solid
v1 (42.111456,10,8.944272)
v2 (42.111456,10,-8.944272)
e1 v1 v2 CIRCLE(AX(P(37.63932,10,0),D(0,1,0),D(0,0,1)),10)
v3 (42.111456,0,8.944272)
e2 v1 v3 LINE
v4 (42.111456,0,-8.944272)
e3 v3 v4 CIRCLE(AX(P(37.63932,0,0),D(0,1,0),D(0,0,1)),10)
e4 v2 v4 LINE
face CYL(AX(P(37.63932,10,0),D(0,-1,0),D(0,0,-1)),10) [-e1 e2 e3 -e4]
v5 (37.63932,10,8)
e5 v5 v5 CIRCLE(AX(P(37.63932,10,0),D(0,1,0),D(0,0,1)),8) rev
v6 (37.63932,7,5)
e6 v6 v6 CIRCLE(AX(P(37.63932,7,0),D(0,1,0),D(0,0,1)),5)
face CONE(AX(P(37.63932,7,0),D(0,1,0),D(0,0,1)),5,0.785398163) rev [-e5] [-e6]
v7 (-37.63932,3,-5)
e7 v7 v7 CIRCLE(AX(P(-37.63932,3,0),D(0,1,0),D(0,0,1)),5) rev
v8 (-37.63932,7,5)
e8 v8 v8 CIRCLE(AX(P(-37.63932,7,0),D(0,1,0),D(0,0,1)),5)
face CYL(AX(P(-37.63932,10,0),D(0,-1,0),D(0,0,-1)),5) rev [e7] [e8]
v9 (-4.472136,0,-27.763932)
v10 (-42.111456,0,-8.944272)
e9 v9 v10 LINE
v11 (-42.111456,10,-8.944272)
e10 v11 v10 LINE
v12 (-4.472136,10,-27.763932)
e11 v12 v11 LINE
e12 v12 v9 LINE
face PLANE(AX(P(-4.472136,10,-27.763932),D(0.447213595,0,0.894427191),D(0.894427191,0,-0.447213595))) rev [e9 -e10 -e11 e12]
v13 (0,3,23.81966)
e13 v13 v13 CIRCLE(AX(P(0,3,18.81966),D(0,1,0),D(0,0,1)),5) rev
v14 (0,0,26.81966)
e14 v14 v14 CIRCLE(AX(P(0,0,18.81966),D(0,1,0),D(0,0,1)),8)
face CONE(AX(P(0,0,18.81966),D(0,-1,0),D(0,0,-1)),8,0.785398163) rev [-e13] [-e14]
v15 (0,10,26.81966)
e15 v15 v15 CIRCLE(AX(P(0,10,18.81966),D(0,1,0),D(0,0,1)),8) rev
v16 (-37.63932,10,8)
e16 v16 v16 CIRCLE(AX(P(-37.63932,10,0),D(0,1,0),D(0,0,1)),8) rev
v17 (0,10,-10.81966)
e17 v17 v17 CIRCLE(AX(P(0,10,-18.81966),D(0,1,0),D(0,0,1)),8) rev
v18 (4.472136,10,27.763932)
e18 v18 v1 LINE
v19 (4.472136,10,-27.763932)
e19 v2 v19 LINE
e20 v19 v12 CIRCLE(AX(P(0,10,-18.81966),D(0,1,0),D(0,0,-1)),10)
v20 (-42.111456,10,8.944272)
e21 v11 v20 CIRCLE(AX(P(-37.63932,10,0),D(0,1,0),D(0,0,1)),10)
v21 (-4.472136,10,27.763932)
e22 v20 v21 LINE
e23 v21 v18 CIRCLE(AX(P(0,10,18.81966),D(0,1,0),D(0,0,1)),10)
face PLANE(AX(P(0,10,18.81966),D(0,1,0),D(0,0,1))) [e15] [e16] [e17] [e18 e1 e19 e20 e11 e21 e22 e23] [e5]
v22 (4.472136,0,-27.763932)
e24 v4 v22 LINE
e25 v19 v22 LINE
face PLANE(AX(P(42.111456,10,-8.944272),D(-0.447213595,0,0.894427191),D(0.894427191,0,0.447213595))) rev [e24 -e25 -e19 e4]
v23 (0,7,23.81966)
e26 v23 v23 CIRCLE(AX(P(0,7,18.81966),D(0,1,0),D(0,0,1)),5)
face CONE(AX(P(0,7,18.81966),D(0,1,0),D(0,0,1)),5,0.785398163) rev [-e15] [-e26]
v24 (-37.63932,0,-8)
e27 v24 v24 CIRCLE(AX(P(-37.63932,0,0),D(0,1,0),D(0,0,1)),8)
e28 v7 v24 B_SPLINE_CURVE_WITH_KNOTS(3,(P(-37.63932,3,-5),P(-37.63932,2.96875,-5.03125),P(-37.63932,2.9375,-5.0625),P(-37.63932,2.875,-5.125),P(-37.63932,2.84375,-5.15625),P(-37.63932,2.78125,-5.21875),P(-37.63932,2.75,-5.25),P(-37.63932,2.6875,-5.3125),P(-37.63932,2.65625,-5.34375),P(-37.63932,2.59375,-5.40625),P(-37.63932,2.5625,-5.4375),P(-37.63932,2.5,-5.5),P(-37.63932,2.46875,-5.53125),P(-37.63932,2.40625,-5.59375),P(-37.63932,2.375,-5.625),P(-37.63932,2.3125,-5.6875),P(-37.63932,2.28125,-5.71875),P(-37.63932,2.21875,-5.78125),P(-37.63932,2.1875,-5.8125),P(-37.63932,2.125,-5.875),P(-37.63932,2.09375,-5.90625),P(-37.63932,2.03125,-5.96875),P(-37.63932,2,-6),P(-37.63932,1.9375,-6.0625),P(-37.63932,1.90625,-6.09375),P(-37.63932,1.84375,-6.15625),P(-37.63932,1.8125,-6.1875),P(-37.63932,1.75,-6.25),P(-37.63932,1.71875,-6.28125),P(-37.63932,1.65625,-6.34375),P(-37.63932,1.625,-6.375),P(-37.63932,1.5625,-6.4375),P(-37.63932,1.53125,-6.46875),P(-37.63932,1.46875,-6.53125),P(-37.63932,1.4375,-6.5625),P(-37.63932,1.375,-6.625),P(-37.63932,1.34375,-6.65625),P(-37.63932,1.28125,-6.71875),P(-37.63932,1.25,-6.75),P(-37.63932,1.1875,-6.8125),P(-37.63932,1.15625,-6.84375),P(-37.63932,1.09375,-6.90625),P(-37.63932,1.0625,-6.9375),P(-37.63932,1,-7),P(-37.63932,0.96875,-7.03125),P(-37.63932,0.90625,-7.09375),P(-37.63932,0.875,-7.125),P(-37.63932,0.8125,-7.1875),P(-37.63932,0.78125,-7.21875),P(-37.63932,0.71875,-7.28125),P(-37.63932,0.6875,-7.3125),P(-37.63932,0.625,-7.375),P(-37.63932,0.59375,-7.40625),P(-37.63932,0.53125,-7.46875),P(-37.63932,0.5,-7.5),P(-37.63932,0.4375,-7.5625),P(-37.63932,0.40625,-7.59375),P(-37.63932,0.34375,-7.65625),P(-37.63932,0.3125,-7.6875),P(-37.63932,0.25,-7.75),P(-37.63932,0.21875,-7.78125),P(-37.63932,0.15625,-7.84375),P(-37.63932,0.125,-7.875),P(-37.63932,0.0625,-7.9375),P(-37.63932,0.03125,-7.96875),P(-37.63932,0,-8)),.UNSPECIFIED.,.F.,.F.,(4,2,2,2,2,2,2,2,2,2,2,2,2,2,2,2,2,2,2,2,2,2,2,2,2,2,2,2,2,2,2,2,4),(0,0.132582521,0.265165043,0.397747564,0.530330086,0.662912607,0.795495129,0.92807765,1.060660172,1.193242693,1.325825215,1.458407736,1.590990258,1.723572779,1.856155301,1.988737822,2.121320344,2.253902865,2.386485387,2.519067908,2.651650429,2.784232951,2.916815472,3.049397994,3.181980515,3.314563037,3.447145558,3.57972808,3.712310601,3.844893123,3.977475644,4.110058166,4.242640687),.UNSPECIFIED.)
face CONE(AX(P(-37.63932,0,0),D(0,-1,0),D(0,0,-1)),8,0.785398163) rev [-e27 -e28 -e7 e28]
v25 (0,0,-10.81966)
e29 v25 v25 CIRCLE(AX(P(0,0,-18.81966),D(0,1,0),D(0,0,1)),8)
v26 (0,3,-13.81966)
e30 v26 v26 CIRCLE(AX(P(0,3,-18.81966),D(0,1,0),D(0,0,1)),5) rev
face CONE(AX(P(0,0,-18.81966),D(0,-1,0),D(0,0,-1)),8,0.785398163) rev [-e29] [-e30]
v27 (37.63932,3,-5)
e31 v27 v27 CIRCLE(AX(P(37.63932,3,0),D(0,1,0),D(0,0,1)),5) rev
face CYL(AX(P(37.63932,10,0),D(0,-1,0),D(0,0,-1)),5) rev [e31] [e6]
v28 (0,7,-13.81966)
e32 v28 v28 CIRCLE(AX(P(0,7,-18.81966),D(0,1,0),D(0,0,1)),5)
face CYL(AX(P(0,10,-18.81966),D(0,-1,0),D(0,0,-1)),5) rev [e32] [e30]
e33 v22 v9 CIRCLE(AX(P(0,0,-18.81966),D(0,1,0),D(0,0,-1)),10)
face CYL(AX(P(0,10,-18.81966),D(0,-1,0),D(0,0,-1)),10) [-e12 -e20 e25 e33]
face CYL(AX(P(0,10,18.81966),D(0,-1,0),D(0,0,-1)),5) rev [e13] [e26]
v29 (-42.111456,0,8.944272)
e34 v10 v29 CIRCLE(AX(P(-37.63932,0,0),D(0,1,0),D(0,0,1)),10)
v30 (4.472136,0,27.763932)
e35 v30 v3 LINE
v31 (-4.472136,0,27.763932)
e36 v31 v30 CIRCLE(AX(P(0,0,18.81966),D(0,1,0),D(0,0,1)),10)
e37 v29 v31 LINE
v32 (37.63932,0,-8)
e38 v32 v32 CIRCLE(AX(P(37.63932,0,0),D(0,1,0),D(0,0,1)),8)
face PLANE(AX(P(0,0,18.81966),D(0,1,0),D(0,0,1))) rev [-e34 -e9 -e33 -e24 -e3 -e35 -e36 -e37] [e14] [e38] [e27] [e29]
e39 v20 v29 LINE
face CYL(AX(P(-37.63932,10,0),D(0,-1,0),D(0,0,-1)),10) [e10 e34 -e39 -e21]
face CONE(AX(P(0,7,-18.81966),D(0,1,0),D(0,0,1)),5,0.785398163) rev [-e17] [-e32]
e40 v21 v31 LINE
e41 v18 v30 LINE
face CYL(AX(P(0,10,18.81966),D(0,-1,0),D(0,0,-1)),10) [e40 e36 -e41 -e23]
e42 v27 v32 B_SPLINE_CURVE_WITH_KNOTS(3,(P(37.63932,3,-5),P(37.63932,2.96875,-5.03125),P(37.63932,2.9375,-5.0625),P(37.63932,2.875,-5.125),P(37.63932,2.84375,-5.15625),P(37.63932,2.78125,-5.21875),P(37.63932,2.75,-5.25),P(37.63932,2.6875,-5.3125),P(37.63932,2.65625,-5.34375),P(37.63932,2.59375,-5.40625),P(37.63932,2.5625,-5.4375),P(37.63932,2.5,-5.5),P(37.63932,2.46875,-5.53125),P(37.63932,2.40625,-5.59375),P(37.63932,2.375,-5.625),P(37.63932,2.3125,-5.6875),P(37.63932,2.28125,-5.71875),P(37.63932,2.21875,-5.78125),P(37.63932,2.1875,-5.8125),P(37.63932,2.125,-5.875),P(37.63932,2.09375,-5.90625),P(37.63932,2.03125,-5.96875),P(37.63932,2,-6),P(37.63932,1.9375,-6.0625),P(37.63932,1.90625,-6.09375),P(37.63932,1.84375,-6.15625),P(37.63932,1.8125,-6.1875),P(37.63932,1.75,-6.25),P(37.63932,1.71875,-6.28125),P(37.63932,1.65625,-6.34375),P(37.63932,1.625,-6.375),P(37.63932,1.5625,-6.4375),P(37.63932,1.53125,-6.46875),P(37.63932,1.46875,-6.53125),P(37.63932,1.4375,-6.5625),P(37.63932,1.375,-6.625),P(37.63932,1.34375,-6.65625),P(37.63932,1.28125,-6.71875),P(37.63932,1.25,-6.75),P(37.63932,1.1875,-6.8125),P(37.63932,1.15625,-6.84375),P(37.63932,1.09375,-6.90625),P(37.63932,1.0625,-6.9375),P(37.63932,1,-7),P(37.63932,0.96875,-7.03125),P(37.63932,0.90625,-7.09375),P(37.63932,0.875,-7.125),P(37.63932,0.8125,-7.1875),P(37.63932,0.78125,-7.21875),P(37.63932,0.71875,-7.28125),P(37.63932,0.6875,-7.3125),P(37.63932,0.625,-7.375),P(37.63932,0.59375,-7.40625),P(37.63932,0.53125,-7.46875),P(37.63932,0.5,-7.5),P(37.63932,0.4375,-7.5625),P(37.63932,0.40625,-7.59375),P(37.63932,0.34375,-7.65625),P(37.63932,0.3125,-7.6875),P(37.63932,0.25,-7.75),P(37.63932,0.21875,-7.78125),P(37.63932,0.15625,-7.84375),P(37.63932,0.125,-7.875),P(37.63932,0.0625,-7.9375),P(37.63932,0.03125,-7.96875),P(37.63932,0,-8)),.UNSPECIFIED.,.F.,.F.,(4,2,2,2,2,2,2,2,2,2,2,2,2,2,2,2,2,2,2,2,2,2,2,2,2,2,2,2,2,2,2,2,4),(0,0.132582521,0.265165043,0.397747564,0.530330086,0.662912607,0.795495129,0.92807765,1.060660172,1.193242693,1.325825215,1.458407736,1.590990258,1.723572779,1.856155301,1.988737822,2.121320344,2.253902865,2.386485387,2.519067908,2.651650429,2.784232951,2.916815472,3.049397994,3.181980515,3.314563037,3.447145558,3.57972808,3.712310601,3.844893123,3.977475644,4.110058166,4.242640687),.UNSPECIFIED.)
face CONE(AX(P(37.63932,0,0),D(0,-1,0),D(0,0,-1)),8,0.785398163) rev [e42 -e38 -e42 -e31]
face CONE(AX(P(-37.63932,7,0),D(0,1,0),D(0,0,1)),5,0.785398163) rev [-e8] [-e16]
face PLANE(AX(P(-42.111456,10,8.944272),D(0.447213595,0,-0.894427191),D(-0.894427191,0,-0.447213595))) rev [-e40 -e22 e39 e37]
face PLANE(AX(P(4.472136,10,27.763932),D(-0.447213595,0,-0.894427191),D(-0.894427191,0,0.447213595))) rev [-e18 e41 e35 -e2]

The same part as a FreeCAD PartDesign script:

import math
import FreeCAD as App
import Part
import Sketcher


def edges_at(feature, points):
    """Names of the edges that pass closest to the given points."""
    edges = feature.Shape.Edges
    near = lambda p: min(range(len(edges)), key=lambda i: edges[i].distToShape(Part.Vertex(*p))[0])
    return sorted({f"Edge{near(p) + 1}" for p in points})

doc = App.newDocument("Part")
body = doc.addObject("PartDesign::Body", "Body")

# Sketch on XZ plane
sketch1 = body.newObject("Sketcher::SketchObject", "Sketch")
sketch1.AttachmentSupport = (doc.getObject("XZ_Plane"), [""])
sketch1.MapMode = "FlatFace"
sketch1.addGeometry(Part.LineSegment(App.Vector(-4, -28, 0), App.Vector(-42, -9, 0)), False)
sketch1.addGeometry(Part.ArcOfCircle(Part.Circle(App.Vector(-38, 0, 0), App.Vector(0, 0, 1), 10), math.radians(117), math.radians(243)), False)
sketch1.addGeometry(Part.LineSegment(App.Vector(-42, 9, 0), App.Vector(-4, 28, 0)), False)
sketch1.addGeometry(Part.ArcOfCircle(Part.Circle(App.Vector(0, 19, 0), App.Vector(0, 0, 1), 10), math.radians(63), math.radians(117)), False)
sketch1.addGeometry(Part.LineSegment(App.Vector(4, 28, 0), App.Vector(42, 9, 0)), False)
sketch1.addGeometry(Part.ArcOfCircle(Part.Circle(App.Vector(38, 0, 0), App.Vector(0, 0, 1), 10), math.radians(-63), math.radians(63)), False)
sketch1.addGeometry(Part.LineSegment(App.Vector(42, -9, 0), App.Vector(4, -28, 0)), False)
sketch1.addGeometry(Part.ArcOfCircle(Part.Circle(App.Vector(0, -19, 0), App.Vector(0, 0, 1), 10), math.radians(-117), math.radians(-63)), False)
sketch1.addGeometry(Part.Circle(App.Vector(0, 19, 0), App.Vector(0, 0, 1), 5), False)
sketch1.addGeometry(Part.Circle(App.Vector(-38, 0, 0), App.Vector(0, 0, 1), 5), False)
sketch1.addGeometry(Part.Circle(App.Vector(38, 0, 0), App.Vector(0, 0, 1), 5), False)
sketch1.addGeometry(Part.Circle(App.Vector(0, -19, 0), App.Vector(0, 0, 1), 5), False)
sketch1.addConstraint(Sketcher.Constraint("Tangent", 0, 2, 1, 2))
sketch1.addConstraint(Sketcher.Constraint("Tangent", 1, 1, 2, 1))
sketch1.addConstraint(Sketcher.Constraint("Tangent", 2, 2, 3, 2))
sketch1.addConstraint(Sketcher.Constraint("Tangent", 3, 1, 4, 1))
sketch1.addConstraint(Sketcher.Constraint("Tangent", 4, 2, 5, 2))
sketch1.addConstraint(Sketcher.Constraint("Tangent", 5, 1, 6, 1))
sketch1.addConstraint(Sketcher.Constraint("Tangent", 6, 2, 7, 2))
sketch1.addConstraint(Sketcher.Constraint("Tangent", 7, 1, 0, 1))
sketch1.addConstraint(Sketcher.Constraint("Coincident", 8, 3, 3, 3))
sketch1.addConstraint(Sketcher.Constraint("Coincident", 9, 3, 1, 3))
sketch1.addConstraint(Sketcher.Constraint("Coincident", 10, 3, 5, 3))
sketch1.addConstraint(Sketcher.Constraint("Coincident", 11, 3, 7, 3))
sketch1.addConstraint(Sketcher.Constraint("Equal", 1, 3))
sketch1.addConstraint(Sketcher.Constraint("Equal", 3, 5))
sketch1.addConstraint(Sketcher.Constraint("Equal", 5, 7))
sketch1.addConstraint(Sketcher.Constraint("Equal", 8, 9))
sketch1.addConstraint(Sketcher.Constraint("Equal", 9, 10))
sketch1.addConstraint(Sketcher.Constraint("Equal", 10, 11))
sketch1.addConstraint(Sketcher.Constraint("Symmetric", 1, 3, 5, 3, -1, 1))
sketch1.addConstraint(Sketcher.Constraint("Symmetric", 3, 3, 7, 3, -1, 1))
sketch1.addConstraint(Sketcher.Constraint("Symmetric", 2, 2, 3, 1, -2))
sketch1.addConstraint(Sketcher.Constraint("Diameter", 8, 10.0))
sketch1.addConstraint(Sketcher.Constraint("Radius", 1, 10.0))
sketch1.addConstraint(Sketcher.Constraint("Distance", 0, 42.082039))
sketch1.addConstraint(Sketcher.Constraint("DistanceX", 1, 3, -1, 1, 37.63932))
pad1 = body.newObject("PartDesign::Pad", "Pad")
pad1.Profile = sketch1
pad1.Length = 10
pad1.Reversed = True
doc.recompute()

chamfer = body.newObject("PartDesign::Chamfer", "Chamfer")
chamfer.Base = (pad1, edges_at(pad1, [
    (0, 0, -23.82),
    (0, 10, -23.82),
    (37.639, 0, -5),
    (37.639, 10, -5),
    (0, 0, 13.82),
    (0, 10, 13.82),
    (-37.639, 0, -5),
    (-37.639, 10, -5),
]))
chamfer.Size = 3

doc.recompute()
